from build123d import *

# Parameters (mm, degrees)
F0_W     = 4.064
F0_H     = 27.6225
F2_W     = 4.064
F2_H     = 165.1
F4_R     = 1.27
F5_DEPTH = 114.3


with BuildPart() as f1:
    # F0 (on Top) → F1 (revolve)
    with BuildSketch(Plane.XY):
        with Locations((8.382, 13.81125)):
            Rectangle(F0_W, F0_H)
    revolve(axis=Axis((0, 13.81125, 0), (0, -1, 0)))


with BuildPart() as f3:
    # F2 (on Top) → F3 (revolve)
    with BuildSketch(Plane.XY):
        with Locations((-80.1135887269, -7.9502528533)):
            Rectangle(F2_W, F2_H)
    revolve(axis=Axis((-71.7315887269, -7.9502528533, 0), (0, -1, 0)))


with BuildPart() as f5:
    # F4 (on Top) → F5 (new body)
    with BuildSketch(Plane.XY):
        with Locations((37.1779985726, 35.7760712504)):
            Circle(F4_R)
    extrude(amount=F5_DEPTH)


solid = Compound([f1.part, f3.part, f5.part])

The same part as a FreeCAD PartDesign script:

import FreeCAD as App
import Part
import Sketcher
Q = App.Units.Quantity


def add_polygon(sketch, points):
    """Adds a closed chain of lines whose ends are joined by coincident constraints."""
    first, n = sketch.GeometryCount, len(points)
    for a, b in zip(points, points[1:] + points[:1]):
        sketch.addGeometry(Part.LineSegment(App.Vector(*a, 0), App.Vector(*b, 0)), False)
    for i in range(n):
        sketch.addConstraint(Sketcher.Constraint("Coincident", first + i, 2, first + (i + 1) % n, 1))

doc = App.newDocument("Part")
body = doc.addObject("PartDesign::Body", "Body")

# Sketch on XY plane
sketch1 = body.newObject("Sketcher::SketchObject", "Sketch")
sketch1.AttachmentSupport = (doc.getObject("XY_Plane"), [""])
sketch1.MapMode = "FlatFace"
add_polygon(sketch1, [(6.3, 27.6), (6.3, 0), (10.4, 0), (10.4, 27.6)])  # lines 0-3
sketch1.addConstraint(Sketcher.Constraint("Vertical", 0))
sketch1.addConstraint(Sketcher.Constraint("Horizontal", 1))
sketch1.addConstraint(Sketcher.Constraint("Vertical", 2))
sketch1.addConstraint(Sketcher.Constraint("Horizontal", 3))
sketch1.addConstraint(Sketcher.Constraint("PointOnObject", 0, 2, -1))
sketch1.addConstraint(Sketcher.Constraint("DistanceX", 1, 1, 1, 2, Q("0.16 in")))
sketch1.addConstraint(Sketcher.Constraint("DistanceX", -1, 1, 0, 2, Q("0.25 in")))
sketch1.addConstraint(Sketcher.Constraint("DistanceY", 0, 2, 0, 1, Q("1.0875 in")))
revolution = body.newObject("PartDesign::Revolution", "Revolution")
revolution.Profile = sketch1
revolution.ReferenceAxis = (sketch1, ["V_Axis"])
revolution.Angle = 360
body2 = doc.addObject("PartDesign::Body", "Body001")

# Sketch on XY plane
sketch2 = body2.newObject("Sketcher::SketchObject", "Sketch001")
sketch2.AttachmentSupport = (doc.getObject("XY_Plane001"), [""])
sketch2.MapMode = "FlatFace"
add_polygon(sketch2, [(-82.1, 74.6), (-82.1, -90.5), (-78.1, -90.5), (-78.1, 74.6)])  # lines 0-3
sketch2.addGeometry(Part.LineSegment(App.Vector(-71.7, 74.6, 0), App.Vector(-71.7, -90.5, 0)), True)  # axis
sketch2.addConstraint(Sketcher.Constraint("Vertical", 0))
sketch2.addConstraint(Sketcher.Constraint("Horizontal", 1))
sketch2.addConstraint(Sketcher.Constraint("Vertical", 2))
sketch2.addConstraint(Sketcher.Constraint("Horizontal", 3))
sketch2.addConstraint(Sketcher.Constraint("Vertical", 4))
sketch2.addConstraint(Sketcher.Constraint("Horizontal", 3, 2, 4, 1))
sketch2.addConstraint(Sketcher.Constraint("Horizontal", 1, 2, 4, 2))
sketch2.addConstraint(Sketcher.Constraint("DistanceY", 0, 2, 0, 1, Q("6.5 in")))
sketch2.addConstraint(Sketcher.Constraint("DistanceX", 1, 1, 1, 2, Q("0.16 in")))
sketch2.addConstraint(Sketcher.Constraint("DistanceX", 2, 2, 4, 1, Q("0.25 in")))
sketch2.addConstraint(Sketcher.Constraint("DistanceX", 0, 2, -1, 1, 82.145589))
sketch2.addConstraint(Sketcher.Constraint("DistanceY", 0, 2, -1, 1, 90.500253))
revolution2 = body2.newObject("PartDesign::Revolution", "Revolution001")
revolution2.Profile = sketch2
revolution2.ReferenceAxis = (sketch2, ["Axis0"])
revolution2.Angle = 360
body3 = doc.addObject("PartDesign::Body", "Body002")

# Sketch on XY plane
sketch3 = body3.newObject("Sketcher::SketchObject", "Sketch002")
sketch3.AttachmentSupport = (doc.getObject("XY_Plane002"), [""])
sketch3.MapMode = "FlatFace"
sketch3.addGeometry(Part.Circle(App.Vector(37.2, 35.8, 0), App.Vector(0, 0, 1), 1.3), False)
sketch3.addConstraint(Sketcher.Constraint("Diameter", 0, Q("0.1 in")))
sketch3.addConstraint(Sketcher.Constraint("DistanceX", -1, 1, 0, 3, 37.177999))
sketch3.addConstraint(Sketcher.Constraint("DistanceY", -1, 1, 0, 3, 35.776071))
pad1 = body3.newObject("PartDesign::Pad", "Pad")
pad1.Profile = sketch3
pad1.Length = Q("4.5 in")

doc.recompute()
